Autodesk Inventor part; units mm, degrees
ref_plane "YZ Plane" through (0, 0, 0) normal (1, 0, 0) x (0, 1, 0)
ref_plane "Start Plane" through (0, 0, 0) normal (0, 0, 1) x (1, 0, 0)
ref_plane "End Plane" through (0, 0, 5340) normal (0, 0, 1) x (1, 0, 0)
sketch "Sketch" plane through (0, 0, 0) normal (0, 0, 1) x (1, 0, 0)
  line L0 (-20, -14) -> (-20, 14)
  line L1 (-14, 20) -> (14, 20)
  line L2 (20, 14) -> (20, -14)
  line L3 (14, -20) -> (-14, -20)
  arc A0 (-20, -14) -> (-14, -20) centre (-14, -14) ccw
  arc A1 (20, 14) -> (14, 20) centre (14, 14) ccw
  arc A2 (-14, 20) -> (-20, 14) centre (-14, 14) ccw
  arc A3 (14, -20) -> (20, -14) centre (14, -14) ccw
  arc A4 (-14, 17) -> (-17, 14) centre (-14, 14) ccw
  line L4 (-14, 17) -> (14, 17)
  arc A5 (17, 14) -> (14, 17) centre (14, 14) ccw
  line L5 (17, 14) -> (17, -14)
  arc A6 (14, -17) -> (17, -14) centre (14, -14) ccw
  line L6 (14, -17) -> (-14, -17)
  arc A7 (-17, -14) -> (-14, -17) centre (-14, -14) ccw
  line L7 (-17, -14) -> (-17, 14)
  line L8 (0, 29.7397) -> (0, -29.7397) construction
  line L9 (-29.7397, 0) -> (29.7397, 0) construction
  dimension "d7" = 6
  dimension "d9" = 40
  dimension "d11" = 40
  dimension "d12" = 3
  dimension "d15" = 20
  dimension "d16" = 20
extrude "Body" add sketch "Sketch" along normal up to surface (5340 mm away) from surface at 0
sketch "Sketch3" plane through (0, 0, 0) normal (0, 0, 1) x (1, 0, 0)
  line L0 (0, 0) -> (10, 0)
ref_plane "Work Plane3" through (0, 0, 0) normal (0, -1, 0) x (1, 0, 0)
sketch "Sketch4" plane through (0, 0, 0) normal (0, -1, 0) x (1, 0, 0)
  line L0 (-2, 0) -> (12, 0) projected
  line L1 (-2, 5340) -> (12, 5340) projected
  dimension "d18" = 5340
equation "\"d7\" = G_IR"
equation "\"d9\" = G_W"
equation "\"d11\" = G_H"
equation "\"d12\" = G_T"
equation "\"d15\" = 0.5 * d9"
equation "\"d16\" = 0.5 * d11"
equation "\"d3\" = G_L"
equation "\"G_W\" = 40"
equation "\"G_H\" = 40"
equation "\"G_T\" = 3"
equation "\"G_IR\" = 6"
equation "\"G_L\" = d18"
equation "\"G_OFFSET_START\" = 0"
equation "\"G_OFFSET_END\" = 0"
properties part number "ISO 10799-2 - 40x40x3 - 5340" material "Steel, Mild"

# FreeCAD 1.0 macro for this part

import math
import FreeCAD as App
import Part
import Sketcher
from FreeCAD import Vector
Q = App.Units.Quantity

doc = App.newDocument("Part")
body = doc.addObject("PartDesign::Body", "Body")

sketch1 = doc.addObject("Sketcher::SketchObject", "Sketch")
body.addObject(sketch1)
sketch1.AttachmentSupport = (doc.XY_Plane, [""])
sketch1.MapMode = "FlatFace"
sketch1.addGeometry(Part.LineSegment(Vector(-20, 14, 0), Vector(-20, -14, 0)), False)
sketch1.addGeometry(Part.ArcOfCircle(Part.Circle(Vector(-14, -14, 0), Vector(0, 0, 1), 6), math.radians(180), math.radians(270)), False)
sketch1.addGeometry(Part.LineSegment(Vector(-14, -20, 0), Vector(14, -20, 0)), False)
sketch1.addGeometry(Part.ArcOfCircle(Part.Circle(Vector(14, -14, 0), Vector(0, 0, 1), 6), math.radians(-90), math.radians(0)), False)
sketch1.addGeometry(Part.LineSegment(Vector(20, -14, 0), Vector(20, 14, 0)), False)
sketch1.addGeometry(Part.ArcOfCircle(Part.Circle(Vector(14, 14, 0), Vector(0, 0, 1), 6), math.radians(0), math.radians(90)), False)
sketch1.addGeometry(Part.LineSegment(Vector(14, 20, 0), Vector(-14, 20, 0)), False)
sketch1.addGeometry(Part.ArcOfCircle(Part.Circle(Vector(-14, 14, 0), Vector(0, 0, 1), 6), math.radians(90), math.radians(180)), False)
sketch1.addGeometry(Part.ArcOfCircle(Part.Circle(Vector(-14, 14, 0), Vector(0, 0, 1), 3), math.radians(90), math.radians(180)), False)
sketch1.addGeometry(Part.LineSegment(Vector(-14, 17, 0), Vector(14, 17, 0)), False)
sketch1.addGeometry(Part.ArcOfCircle(Part.Circle(Vector(14, 14, 0), Vector(0, 0, 1), 3), math.radians(0), math.radians(90)), False)
sketch1.addGeometry(Part.LineSegment(Vector(17, 14, 0), Vector(17, -14, 0)), False)
sketch1.addGeometry(Part.ArcOfCircle(Part.Circle(Vector(14, -14, 0), Vector(0, 0, 1), 3), math.radians(-90), math.radians(0)), False)
sketch1.addGeometry(Part.LineSegment(Vector(14, -17, 0), Vector(-14, -17, 0)), False)
sketch1.addGeometry(Part.ArcOfCircle(Part.Circle(Vector(-14, -14, 0), Vector(0, 0, 1), 3), math.radians(180), math.radians(270)), False)
sketch1.addGeometry(Part.LineSegment(Vector(-17, -14, 0), Vector(-17, 14, 0)), False)
sketch1.addConstraint(Sketcher.Constraint("Tangent", 0, 2, 1, 1))
sketch1.addConstraint(Sketcher.Constraint("Tangent", 1, 2, 2, 1))
sketch1.addConstraint(Sketcher.Constraint("Tangent", 2, 2, 3, 1))
sketch1.addConstraint(Sketcher.Constraint("Tangent", 3, 2, 4, 1))
sketch1.addConstraint(Sketcher.Constraint("Tangent", 4, 2, 5, 1))
sketch1.addConstraint(Sketcher.Constraint("Tangent", 5, 2, 6, 1))
sketch1.addConstraint(Sketcher.Constraint("Tangent", 6, 2, 7, 1))
sketch1.addConstraint(Sketcher.Constraint("Tangent", 7, 2, 0, 1))
sketch1.addConstraint(Sketcher.Constraint("Tangent", 8, 1, 9, 1))
sketch1.addConstraint(Sketcher.Constraint("Tangent", 9, 2, 10, 2))
sketch1.addConstraint(Sketcher.Constraint("Tangent", 10, 1, 11, 1))
sketch1.addConstraint(Sketcher.Constraint("Tangent", 11, 2, 12, 2))
sketch1.addConstraint(Sketcher.Constraint("Tangent", 12, 1, 13, 1))
sketch1.addConstraint(Sketcher.Constraint("Tangent", 13, 2, 14, 2))
sketch1.addConstraint(Sketcher.Constraint("Tangent", 14, 1, 15, 1))
sketch1.addConstraint(Sketcher.Constraint("Tangent", 15, 2, 8, 2))
sketch1.addConstraint(Sketcher.Constraint("Vertical", 0))
sketch1.addConstraint(Sketcher.Constraint("Horizontal", 2))
sketch1.addConstraint(Sketcher.Constraint("Vertical", 4))
sketch1.addConstraint(Sketcher.Constraint("Horizontal", 6))
sketch1.addConstraint(Sketcher.Constraint("Horizontal", 9))
sketch1.addConstraint(Sketcher.Constraint("Vertical", 11))
sketch1.addConstraint(Sketcher.Constraint("Horizontal", 13))
sketch1.addConstraint(Sketcher.Constraint("Vertical", 15))
sketch1.addConstraint(Sketcher.Constraint("Coincident", 8, 3, 7, 3))
sketch1.addConstraint(Sketcher.Constraint("Coincident", 10, 3, 5, 3))
sketch1.addConstraint(Sketcher.Constraint("Coincident", 12, 3, 3, 3))
sketch1.addConstraint(Sketcher.Constraint("Equal", 1, 3))
sketch1.addConstraint(Sketcher.Constraint("Equal", 3, 5))
sketch1.addConstraint(Sketcher.Constraint("Equal", 5, 7))
sketch1.addConstraint(Sketcher.Constraint("Equal", 12, 14))
sketch1.addConstraint(Sketcher.Constraint("Symmetric", 1, 3, 5, 3, -1, 1))
sketch1.addConstraint(Sketcher.Constraint("Equal", 13, 0))
sketch1.addConstraint(Sketcher.Constraint("Radius", 1, Q("6 mm")))
sketch1.addConstraint(Sketcher.Constraint("Radius", 8, Q("3 mm")))
sketch1.addConstraint(Sketcher.Constraint("DistanceX", 0, 2, -1, 1, Q("20 mm")))
pad1 = doc.addObject("PartDesign::Pad", "Pad")
body.addObject(pad1)
pad1.Profile = sketch1
pad1.Length = 5340

doc.recompute()
